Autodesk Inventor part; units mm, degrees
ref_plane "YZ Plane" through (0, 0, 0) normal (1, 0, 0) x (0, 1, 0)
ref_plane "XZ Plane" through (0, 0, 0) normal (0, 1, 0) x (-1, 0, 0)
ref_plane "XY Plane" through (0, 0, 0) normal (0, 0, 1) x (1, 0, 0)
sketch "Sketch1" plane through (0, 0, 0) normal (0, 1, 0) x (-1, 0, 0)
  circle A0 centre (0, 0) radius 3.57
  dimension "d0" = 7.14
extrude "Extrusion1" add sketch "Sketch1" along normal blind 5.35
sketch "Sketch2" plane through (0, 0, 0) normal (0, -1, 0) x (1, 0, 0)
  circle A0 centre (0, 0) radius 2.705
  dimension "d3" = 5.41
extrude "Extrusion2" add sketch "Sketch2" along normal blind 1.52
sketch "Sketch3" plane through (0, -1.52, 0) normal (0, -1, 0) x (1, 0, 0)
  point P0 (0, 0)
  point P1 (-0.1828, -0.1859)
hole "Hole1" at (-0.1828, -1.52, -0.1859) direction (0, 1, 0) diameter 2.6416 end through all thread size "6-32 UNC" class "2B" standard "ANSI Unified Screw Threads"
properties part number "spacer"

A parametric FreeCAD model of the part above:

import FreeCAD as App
import Part
import Sketcher
from FreeCAD import Vector
Q = App.Units.Quantity

doc = App.newDocument("Part")
params = doc.addObject("Spreadsheet::Sheet", "Params")
for row, (alias, value) in enumerate([
    ("pad1_length", "5.35 mm"),
    ("sketch2_diameter", "0.213 in"),
    ("pad2_length", "1.52 mm"),
    ("sketch3_diameter", "0.104 in"),
    ("hole_diameter", "0.104 in"),
], start=1):
    params.set(f"A{row}", alias)
    params.set(f"B{row}", "=" + value)
    params.setAlias(f"B{row}", alias)

body = doc.addObject("PartDesign::Body", "Body")

# Sketch on XZ plane
sketch1 = body.newObject("Sketcher::SketchObject", "Sketch")
sketch1.AttachmentSupport = (doc.getObject("XZ_Plane"), [""])
sketch1.MapMode = "FlatFace"
sketch1.addGeometry(Part.Circle(Vector(0, 0, 0), Vector(0, 0, 1), 3.6), False)
sketch1.addConstraint([
    Sketcher.Constraint("Coincident", 0, 3, -1, 1),
    Sketcher.Constraint("Diameter", 0, Q("0.2811 in")),
])
pad1 = body.newObject("PartDesign::Pad", "Pad")
pad1.Profile = sketch1
pad1.setExpression("Length", "Params.pad1_length")
pad1.Reversed = True

# Sketch on XZ plane
sketch2 = body.newObject("Sketcher::SketchObject", "Sketch001")
sketch2.AttachmentSupport = (doc.getObject("XZ_Plane"), [""])
sketch2.MapMode = "FlatFace"
sketch2.addGeometry(Part.Circle(Vector(0, 0, 0), Vector(0, 0, 1), 2.7), False)
sketch2.addConstraint([
    Sketcher.Constraint("Coincident", 0, 3, -1, 1),
    Sketcher.Constraint("Diameter", 0, Q("0.213 in")),
])
sketch2.setExpression("Constraints[1]", "Params.sketch2_diameter")
pad2 = body.newObject("PartDesign::Pad", "Pad001")
pad2.Profile = sketch2
pad2.setExpression("Length", "Params.pad2_length")

# Sketch on XZ plane
sketch3 = body.newObject("Sketcher::SketchObject", "Sketch002")
sketch3.AttachmentSupport = (doc.getObject("XZ_Plane"), [""])
sketch3.MapMode = "FlatFace"
sketch3.AttachmentOffset = App.Placement(Vector(0, 0, 1.52), App.Rotation())
sketch3.addGeometry(Part.Circle(Vector(-0.2, -0.2, 0), Vector(0, 0, 1), 1.3), False)
sketch3.addConstraint([
    Sketcher.Constraint("Diameter", 0, Q("0.104 in")),
    Sketcher.Constraint("DistanceX", 0, 3, -1, 1, Q("0.0072 in")),
    Sketcher.Constraint("DistanceY", 0, 3, -1, 1, Q("0.186 mm")),
])
sketch3.setExpression("Constraints[0]", "Params.sketch3_diameter")
doc.recompute()
hole = body.newObject("PartDesign::Hole", "Hole")
hole.Profile = sketch3
hole.ThreadType = "None"
hole.setExpression("Diameter", "Params.hole_diameter")
hole.DepthType = "ThroughAll"

doc.recompute()
